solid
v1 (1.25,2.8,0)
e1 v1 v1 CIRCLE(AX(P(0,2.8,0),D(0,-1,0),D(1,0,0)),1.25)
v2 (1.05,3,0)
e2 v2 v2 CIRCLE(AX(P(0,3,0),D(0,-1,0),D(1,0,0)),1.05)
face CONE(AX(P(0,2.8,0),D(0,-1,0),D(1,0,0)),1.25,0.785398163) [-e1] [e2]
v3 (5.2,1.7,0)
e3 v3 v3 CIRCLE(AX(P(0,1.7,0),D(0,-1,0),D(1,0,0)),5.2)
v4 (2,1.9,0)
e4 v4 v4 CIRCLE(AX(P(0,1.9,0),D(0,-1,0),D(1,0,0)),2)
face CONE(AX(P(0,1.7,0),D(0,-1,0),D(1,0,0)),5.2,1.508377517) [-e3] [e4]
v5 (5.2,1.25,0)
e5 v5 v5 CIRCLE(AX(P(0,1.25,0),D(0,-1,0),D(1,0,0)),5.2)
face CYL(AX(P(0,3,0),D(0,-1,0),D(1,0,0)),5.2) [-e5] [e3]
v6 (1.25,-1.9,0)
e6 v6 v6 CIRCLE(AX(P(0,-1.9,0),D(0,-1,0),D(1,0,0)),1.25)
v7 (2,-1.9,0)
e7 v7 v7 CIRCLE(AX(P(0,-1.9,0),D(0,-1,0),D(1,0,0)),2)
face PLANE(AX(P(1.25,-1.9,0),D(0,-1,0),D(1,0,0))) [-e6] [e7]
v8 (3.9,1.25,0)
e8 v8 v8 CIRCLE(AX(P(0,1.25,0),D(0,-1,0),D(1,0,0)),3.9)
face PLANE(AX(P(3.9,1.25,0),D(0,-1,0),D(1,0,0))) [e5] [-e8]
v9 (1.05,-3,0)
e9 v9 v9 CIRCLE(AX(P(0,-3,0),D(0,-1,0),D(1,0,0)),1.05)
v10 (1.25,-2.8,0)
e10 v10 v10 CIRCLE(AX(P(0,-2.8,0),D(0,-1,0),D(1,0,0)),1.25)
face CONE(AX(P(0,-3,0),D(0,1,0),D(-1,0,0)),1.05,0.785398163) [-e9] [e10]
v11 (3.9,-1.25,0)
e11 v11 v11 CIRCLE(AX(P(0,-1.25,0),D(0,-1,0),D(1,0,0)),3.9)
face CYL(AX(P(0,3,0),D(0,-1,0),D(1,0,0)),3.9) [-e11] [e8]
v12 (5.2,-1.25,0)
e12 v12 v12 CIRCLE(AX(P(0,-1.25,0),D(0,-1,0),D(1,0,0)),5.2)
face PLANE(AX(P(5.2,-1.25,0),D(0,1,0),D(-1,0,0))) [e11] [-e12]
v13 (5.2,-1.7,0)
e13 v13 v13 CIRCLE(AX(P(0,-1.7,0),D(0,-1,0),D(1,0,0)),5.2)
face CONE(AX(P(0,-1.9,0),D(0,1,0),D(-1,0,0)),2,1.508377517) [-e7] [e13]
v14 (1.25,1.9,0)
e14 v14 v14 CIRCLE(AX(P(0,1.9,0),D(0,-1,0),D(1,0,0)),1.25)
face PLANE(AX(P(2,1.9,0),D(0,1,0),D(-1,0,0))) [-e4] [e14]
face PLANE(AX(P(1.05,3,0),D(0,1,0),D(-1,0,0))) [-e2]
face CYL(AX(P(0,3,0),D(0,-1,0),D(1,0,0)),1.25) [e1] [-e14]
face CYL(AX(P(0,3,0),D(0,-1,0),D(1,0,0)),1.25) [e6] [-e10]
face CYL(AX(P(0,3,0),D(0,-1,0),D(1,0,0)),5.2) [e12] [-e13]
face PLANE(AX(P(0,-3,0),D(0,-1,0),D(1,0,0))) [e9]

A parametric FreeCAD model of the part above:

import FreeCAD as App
import Part
import Sketcher

V = App.Vector

doc = App.newDocument("Part")
body = doc.addObject("PartDesign::Body", "Body")

# Sketch on XY plane
sketch1 = doc.addObject("Sketcher::SketchObject", "Sketch")
body.addObject(sketch1)
sketch1.AttachmentSupport = (doc.XY_Plane, [""])
sketch1.MapMode = "FlatFace"
sketch1.addGeometry(Part.LineSegment(V(1.05, 3, 0), V(0, 3, 0)), False)
sketch1.addGeometry(Part.LineSegment(V(0, 3, 0), V(0, -3, 0)), False)
sketch1.addGeometry(Part.LineSegment(V(0, -3, 0), V(1.05, -3, 0)), False)
sketch1.addGeometry(Part.LineSegment(V(1.05, -3, 0), V(1.25, -2.8, 0)), False)
sketch1.addGeometry(Part.LineSegment(V(1.25, -2.8, 0), V(1.25, -1.9, 0)), False)
sketch1.addGeometry(Part.LineSegment(V(1.25, -1.9, 0), V(2, -1.9, 0)), False)
sketch1.addGeometry(Part.LineSegment(V(2, -1.9, 0), V(5.2, -1.7, 0)), False)
sketch1.addGeometry(Part.LineSegment(V(5.2, -1.7, 0), V(5.2, -1.25, 0)), False)
sketch1.addGeometry(Part.LineSegment(V(5.2, -1.25, 0), V(3.9, -1.25, 0)), False)
sketch1.addGeometry(Part.LineSegment(V(3.9, -1.25, 0), V(3.9, 1.25, 0)), False)
sketch1.addGeometry(Part.LineSegment(V(3.9, 1.25, 0), V(5.2, 1.25, 0)), False)
sketch1.addGeometry(Part.LineSegment(V(5.2, 1.25, 0), V(5.2, 1.7, 0)), False)
sketch1.addGeometry(Part.LineSegment(V(5.2, 1.7, 0), V(2, 1.9, 0)), False)
sketch1.addGeometry(Part.LineSegment(V(2, 1.9, 0), V(1.25, 1.9, 0)), False)
sketch1.addGeometry(Part.LineSegment(V(1.25, 1.9, 0), V(1.25, 2.8, 0)), False)
sketch1.addGeometry(Part.LineSegment(V(1.25, 2.8, 0), V(1.05, 3, 0)), False)
sketch1.addConstraint(Sketcher.Constraint("Coincident", 0, 2, 1, 1))
sketch1.addConstraint(Sketcher.Constraint("Coincident", 1, 2, 2, 1))
sketch1.addConstraint(Sketcher.Constraint("Coincident", 2, 2, 3, 1))
sketch1.addConstraint(Sketcher.Constraint("Coincident", 3, 2, 4, 1))
sketch1.addConstraint(Sketcher.Constraint("Coincident", 4, 2, 5, 1))
sketch1.addConstraint(Sketcher.Constraint("Coincident", 5, 2, 6, 1))
sketch1.addConstraint(Sketcher.Constraint("Coincident", 6, 2, 7, 1))
sketch1.addConstraint(Sketcher.Constraint("Coincident", 7, 2, 8, 1))
sketch1.addConstraint(Sketcher.Constraint("Coincident", 8, 2, 9, 1))
sketch1.addConstraint(Sketcher.Constraint("Coincident", 9, 2, 10, 1))
sketch1.addConstraint(Sketcher.Constraint("Coincident", 10, 2, 11, 1))
sketch1.addConstraint(Sketcher.Constraint("Coincident", 11, 2, 12, 1))
sketch1.addConstraint(Sketcher.Constraint("Coincident", 12, 2, 13, 1))
sketch1.addConstraint(Sketcher.Constraint("Coincident", 13, 2, 14, 1))
sketch1.addConstraint(Sketcher.Constraint("Coincident", 14, 2, 15, 1))
sketch1.addConstraint(Sketcher.Constraint("Coincident", 15, 2, 0, 1))
sketch1.addConstraint(Sketcher.Constraint("Horizontal", 0))
sketch1.addConstraint(Sketcher.Constraint("Vertical", 1))
sketch1.addConstraint(Sketcher.Constraint("Horizontal", 2))
sketch1.addConstraint(Sketcher.Constraint("Vertical", 4))
sketch1.addConstraint(Sketcher.Constraint("Horizontal", 5))
sketch1.addConstraint(Sketcher.Constraint("Vertical", 7))
sketch1.addConstraint(Sketcher.Constraint("Horizontal", 8))
sketch1.addConstraint(Sketcher.Constraint("Vertical", 9))
sketch1.addConstraint(Sketcher.Constraint("Horizontal", 10))
sketch1.addConstraint(Sketcher.Constraint("Vertical", 11))
sketch1.addConstraint(Sketcher.Constraint("Horizontal", 13))
sketch1.addConstraint(Sketcher.Constraint("Vertical", 14))
sketch1.addConstraint(Sketcher.Constraint("Symmetric", 0, 2, 1, 2, -1, 1))
sketch1.addConstraint(Sketcher.Constraint("Symmetric", 7, 2, 10, 2, -1))
sketch1.addConstraint(Sketcher.Constraint("Symmetric", 5, 2, 12, 2, -1))
sketch1.addConstraint(Sketcher.Constraint("Symmetric", 3, 2, 14, 2, -1))
sketch1.addConstraint(Sketcher.Constraint("Perpendicular", 3, 15))
sketch1.addConstraint(Sketcher.Constraint("Vertical", 2, 2, 15, 2))
sketch1.addConstraint(Sketcher.Constraint("Equal", 7, 11))
sketch1.addConstraint(Sketcher.Constraint("DistanceY", 1, 2, 1, 1, 6.0))
sketch1.addConstraint(Sketcher.Constraint("DistanceX", 8, 2, 8, 1, 1.3))
sketch1.addConstraint(Sketcher.Constraint("DistanceY", 4, 1, 4, 2, 0.9))
sketch1.addConstraint(Sketcher.Constraint("DistanceY", 9, 1, 9, 2, 2.5))
sketch1.addConstraint(Sketcher.Constraint("DistanceX", -1, 1, 5, 2, 2.0))
sketch1.addConstraint(Sketcher.Constraint("DistanceX", 0, 2, 0, 1, 1.05))
sketch1.addConstraint(Sketcher.Constraint("DistanceX", 5, 1, 5, 2, 0.75))
sketch1.addConstraint(Sketcher.Constraint("DistanceY", 7, 1, 7, 2, 0.45))
sketch1.addConstraint(Sketcher.Constraint("DistanceX", -1, 1, 6, 2, 5.2))
revolution = doc.addObject("PartDesign::Revolution", "Revolution")
body.addObject(revolution)
revolution.Profile = sketch1
revolution.ReferenceAxis = (sketch1, ["V_Axis"])
revolution.Angle = 360

doc.recompute()
